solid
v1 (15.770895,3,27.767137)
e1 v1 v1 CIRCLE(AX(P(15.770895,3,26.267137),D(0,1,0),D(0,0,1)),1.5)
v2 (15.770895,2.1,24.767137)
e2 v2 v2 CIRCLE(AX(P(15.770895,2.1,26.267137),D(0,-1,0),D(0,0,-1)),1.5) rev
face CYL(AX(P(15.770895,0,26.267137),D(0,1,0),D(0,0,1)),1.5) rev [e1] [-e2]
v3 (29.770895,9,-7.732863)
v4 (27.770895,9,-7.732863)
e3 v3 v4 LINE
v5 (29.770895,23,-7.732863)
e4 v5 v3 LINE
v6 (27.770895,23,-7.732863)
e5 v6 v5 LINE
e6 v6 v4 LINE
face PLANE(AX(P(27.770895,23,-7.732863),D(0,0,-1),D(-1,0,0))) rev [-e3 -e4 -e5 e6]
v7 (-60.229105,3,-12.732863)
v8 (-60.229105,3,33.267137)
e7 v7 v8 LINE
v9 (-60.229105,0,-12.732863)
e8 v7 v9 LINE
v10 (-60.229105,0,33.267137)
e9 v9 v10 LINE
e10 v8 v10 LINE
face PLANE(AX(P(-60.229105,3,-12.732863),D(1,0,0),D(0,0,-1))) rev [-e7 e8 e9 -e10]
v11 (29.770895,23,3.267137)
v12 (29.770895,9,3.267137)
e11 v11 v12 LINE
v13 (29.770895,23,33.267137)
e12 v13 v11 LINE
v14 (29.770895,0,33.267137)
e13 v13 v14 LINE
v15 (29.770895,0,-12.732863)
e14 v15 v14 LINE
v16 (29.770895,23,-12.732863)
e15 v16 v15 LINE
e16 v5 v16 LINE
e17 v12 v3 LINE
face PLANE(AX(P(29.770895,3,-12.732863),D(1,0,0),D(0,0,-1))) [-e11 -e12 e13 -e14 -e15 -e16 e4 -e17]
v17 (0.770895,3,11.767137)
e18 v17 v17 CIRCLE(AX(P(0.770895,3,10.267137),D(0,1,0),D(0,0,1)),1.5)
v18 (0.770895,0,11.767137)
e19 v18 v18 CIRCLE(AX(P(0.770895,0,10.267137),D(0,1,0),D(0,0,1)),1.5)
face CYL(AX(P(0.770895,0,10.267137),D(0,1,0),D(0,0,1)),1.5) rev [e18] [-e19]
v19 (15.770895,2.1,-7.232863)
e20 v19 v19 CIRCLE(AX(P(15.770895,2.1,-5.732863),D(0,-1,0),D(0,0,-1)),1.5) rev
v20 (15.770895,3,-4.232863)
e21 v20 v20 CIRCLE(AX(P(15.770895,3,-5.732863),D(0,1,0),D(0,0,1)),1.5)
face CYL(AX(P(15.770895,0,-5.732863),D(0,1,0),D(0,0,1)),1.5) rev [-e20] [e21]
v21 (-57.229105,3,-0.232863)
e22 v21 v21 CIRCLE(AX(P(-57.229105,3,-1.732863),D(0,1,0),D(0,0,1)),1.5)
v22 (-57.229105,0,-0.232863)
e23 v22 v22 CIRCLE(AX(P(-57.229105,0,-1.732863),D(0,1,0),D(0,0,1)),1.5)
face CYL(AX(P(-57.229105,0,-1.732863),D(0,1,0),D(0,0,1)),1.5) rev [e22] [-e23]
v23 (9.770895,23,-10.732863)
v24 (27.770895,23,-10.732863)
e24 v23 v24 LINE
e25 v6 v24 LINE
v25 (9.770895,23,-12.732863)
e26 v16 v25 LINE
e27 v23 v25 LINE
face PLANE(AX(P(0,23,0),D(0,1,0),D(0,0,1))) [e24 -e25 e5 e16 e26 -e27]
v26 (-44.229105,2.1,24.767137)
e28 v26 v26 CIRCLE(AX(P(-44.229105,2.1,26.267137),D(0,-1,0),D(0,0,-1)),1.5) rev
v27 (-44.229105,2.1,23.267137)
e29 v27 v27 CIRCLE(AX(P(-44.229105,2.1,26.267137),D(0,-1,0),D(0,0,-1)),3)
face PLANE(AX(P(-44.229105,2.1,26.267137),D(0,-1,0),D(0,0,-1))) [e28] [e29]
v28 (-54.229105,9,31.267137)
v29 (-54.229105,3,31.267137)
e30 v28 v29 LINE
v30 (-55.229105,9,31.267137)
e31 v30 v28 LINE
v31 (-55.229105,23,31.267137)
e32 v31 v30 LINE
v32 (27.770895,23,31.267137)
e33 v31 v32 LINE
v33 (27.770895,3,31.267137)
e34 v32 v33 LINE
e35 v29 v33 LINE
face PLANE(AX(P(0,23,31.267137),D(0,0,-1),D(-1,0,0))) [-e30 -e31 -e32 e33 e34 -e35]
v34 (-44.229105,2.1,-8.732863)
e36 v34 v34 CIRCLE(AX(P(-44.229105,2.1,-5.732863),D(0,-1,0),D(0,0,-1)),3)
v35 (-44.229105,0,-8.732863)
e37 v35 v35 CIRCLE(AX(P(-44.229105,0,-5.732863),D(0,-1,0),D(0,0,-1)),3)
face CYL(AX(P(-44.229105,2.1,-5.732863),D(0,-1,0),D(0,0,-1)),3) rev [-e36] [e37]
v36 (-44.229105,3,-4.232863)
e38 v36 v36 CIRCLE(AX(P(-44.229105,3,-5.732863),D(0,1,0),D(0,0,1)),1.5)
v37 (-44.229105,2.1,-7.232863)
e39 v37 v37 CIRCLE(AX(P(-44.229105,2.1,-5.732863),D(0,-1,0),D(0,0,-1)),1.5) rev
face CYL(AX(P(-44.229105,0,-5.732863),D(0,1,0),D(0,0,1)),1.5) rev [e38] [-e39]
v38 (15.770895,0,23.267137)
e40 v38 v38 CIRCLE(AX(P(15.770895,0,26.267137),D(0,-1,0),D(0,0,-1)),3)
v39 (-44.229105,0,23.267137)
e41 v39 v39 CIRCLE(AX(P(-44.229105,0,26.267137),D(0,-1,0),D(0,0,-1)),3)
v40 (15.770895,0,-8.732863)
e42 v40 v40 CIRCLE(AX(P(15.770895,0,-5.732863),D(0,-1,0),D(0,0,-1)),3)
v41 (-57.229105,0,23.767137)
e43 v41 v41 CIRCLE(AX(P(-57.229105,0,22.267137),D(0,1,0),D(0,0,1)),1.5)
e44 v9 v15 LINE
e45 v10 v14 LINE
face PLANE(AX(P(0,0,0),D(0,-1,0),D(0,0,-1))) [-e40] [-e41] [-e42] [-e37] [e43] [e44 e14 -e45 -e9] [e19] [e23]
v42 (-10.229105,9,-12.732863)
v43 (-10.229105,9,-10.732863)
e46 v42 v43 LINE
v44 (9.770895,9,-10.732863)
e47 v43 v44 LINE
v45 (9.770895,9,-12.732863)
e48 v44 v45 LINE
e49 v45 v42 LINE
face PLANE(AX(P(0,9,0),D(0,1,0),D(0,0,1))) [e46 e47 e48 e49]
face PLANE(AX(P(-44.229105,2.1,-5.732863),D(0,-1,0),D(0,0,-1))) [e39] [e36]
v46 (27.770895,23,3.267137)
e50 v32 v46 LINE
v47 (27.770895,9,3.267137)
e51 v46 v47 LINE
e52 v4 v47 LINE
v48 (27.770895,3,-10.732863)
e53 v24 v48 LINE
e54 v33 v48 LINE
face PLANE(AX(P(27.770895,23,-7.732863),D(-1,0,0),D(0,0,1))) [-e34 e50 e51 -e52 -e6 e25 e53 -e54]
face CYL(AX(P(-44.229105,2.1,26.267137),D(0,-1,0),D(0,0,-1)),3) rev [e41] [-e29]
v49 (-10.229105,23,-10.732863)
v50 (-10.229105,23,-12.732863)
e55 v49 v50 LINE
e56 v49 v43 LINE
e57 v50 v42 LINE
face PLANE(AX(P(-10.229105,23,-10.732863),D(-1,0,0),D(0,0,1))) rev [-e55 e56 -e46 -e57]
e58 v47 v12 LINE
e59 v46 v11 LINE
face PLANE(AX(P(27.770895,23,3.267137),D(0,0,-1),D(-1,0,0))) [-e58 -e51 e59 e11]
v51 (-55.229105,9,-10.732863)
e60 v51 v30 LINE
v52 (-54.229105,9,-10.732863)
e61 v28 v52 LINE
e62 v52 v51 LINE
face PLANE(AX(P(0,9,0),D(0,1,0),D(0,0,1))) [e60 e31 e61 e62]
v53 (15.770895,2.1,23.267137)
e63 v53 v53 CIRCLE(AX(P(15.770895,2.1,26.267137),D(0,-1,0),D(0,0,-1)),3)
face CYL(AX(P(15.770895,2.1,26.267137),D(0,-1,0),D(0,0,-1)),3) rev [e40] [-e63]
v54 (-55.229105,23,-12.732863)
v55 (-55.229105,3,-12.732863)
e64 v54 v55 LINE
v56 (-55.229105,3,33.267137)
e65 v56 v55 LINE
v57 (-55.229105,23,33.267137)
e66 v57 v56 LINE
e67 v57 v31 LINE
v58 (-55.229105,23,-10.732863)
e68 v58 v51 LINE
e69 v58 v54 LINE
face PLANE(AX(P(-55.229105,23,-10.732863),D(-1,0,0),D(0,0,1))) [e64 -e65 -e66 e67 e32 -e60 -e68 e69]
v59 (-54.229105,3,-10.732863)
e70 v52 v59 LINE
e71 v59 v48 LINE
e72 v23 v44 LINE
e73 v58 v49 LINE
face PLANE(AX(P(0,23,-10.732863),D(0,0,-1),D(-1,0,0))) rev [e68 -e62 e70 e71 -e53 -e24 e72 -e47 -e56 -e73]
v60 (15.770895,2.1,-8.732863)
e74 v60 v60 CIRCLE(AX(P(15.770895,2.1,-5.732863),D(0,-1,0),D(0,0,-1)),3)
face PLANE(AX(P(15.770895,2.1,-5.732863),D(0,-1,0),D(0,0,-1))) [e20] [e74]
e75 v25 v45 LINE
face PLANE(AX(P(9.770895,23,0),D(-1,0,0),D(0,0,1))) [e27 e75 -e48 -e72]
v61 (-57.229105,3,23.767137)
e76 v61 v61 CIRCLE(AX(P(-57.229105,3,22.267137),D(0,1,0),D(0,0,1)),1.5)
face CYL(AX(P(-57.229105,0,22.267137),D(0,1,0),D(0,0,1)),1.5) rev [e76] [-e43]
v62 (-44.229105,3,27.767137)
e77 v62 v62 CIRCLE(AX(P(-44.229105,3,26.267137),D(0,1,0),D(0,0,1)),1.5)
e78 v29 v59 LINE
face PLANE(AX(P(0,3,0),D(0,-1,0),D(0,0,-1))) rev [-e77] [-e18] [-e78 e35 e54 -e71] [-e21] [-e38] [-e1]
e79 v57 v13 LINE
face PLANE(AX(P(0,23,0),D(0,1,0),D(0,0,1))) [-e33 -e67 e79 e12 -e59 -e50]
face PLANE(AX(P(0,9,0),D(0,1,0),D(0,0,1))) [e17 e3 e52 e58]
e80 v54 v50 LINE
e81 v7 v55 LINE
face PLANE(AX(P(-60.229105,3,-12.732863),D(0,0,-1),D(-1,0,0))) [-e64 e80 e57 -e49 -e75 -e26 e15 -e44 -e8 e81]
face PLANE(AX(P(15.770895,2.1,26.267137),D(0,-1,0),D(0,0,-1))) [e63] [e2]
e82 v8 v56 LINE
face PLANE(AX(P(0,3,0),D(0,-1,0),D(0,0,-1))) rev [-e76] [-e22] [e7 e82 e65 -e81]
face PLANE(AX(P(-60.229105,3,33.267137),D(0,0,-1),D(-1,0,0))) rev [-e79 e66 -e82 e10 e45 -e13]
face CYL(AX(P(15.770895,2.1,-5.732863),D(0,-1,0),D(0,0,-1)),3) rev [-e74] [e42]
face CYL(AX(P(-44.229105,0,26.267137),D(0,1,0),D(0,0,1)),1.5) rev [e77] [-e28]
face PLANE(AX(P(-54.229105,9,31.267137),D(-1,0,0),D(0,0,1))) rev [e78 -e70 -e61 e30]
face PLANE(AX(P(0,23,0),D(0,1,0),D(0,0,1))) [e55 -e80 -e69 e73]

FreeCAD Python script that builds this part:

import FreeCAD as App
import Part
import Sketcher

V = App.Vector
Q = App.Units.Quantity


def add_polygon(sketch, points):
    """Adds a closed chain of lines whose ends are joined by coincident constraints."""
    first, n = sketch.GeometryCount, len(points)
    for a, b in zip(points, points[1:] + points[:1]):
        sketch.addGeometry(Part.LineSegment(App.Vector(*a, 0), App.Vector(*b, 0)), False)
    for i in range(n):
        sketch.addConstraint(Sketcher.Constraint("Coincident", first + i, 2, first + (i + 1) % n, 1))

doc = App.newDocument("Part")
body = doc.addObject("PartDesign::Body", "Body")

# Sketch on XZ plane
sketch1 = body.newObject("Sketcher::SketchObject", "Sketch")
sketch1.AttachmentSupport = (doc.getObject("XZ_Plane"), [""])
sketch1.MapMode = "FlatFace"
add_polygon(sketch1, [(-60.229105, -12.732863), (-60.229105, 33.267137), (29.770895, 33.267137), (29.770895, -12.732863)])  # lines 0-3
sketch1.addConstraint(Sketcher.Constraint("Vertical", 0))
sketch1.addConstraint(Sketcher.Constraint("Horizontal", 1))
sketch1.addConstraint(Sketcher.Constraint("Vertical", 2))
sketch1.addConstraint(Sketcher.Constraint("Horizontal", 3))
sketch1.addConstraint(Sketcher.Constraint("DistanceX", 1, 1, 1, 2, Q("90 mm")))
sketch1.addConstraint(Sketcher.Constraint("DistanceY", 0, 1, 0, 2, Q("46 mm")))
sketch1.addConstraint(Sketcher.Constraint("DistanceX", 0, 2, -1, 1, Q("60.229105 mm")))
sketch1.addConstraint(Sketcher.Constraint("DistanceY", -1, 1, 0, 2, Q("33.267137 mm")))
pad1 = body.newObject("PartDesign::Pad", "Pad")
pad1.Profile = sketch1
pad1.Length = 3
pad1.Reversed = True

# Sketch on XZ plane
sketch2 = body.newObject("Sketcher::SketchObject", "Sketch001")
sketch2.AttachmentSupport = (doc.getObject("XZ_Plane"), [""])
sketch2.MapMode = "FlatFace"
sketch2.AttachmentOffset = App.Placement(V(0, 0, -3), App.Rotation())
sketch2.addGeometry(Part.Circle(V(-57.229105, 22.267137, 0), V(0, 0, 1), 1.5), False)
sketch2.addGeometry(Part.Circle(V(-57.229105, -1.732863, 0), V(0, 0, 1), 1.5), False)
sketch2.addGeometry(Part.Circle(V(0.770895, 10.267137, 0), V(0, 0, 1), 1.5), False)
sketch2.addConstraint(Sketcher.Constraint("Equal", 0, 1))
sketch2.addConstraint(Sketcher.Constraint("Equal", 1, 2))
sketch2.addConstraint(Sketcher.Constraint("Vertical", 0, 3, 1, 3))
sketch2.addConstraint(Sketcher.Constraint("Diameter", 0, Q("3 mm")))
sketch2.addConstraint(Sketcher.Constraint("DistanceY", 1, 3, 0, 3, Q("24 mm")))
sketch2.addConstraint(Sketcher.Constraint("DistanceX", 0, 3, 2, 3, Q("58 mm")))
sketch2.addConstraint(Sketcher.Constraint("DistanceY", 2, 3, 0, 3, Q("12 mm")))
sketch2.addConstraint(Sketcher.Constraint("DistanceX", 0, 3, -1, 1, Q("57.229105 mm")))
sketch2.addConstraint(Sketcher.Constraint("DistanceY", -1, 1, 0, 3, Q("22.267137 mm")))
pocket1 = body.newObject("PartDesign::Pocket", "Pocket")
pocket1.Profile = sketch2
pocket1.Type = "ThroughAll"
pocket1.Reversed = True

# Sketch on XZ plane
sketch3 = body.newObject("Sketcher::SketchObject", "Sketch002")
sketch3.AttachmentSupport = (doc.getObject("XZ_Plane"), [""])
sketch3.MapMode = "FlatFace"
sketch3.AttachmentOffset = App.Placement(V(0, 0, -3), App.Rotation())
add_polygon(sketch3, [(27.770895, 3.267137), (27.770895, 31.267137), (-55.229105, 31.267137), (-55.229105, 33.267137), (29.770895, 33.267137), (29.770895, 3.267137)])  # lines 0-5
add_polygon(sketch3, [(27.770895, -10.732863), (27.770895, -7.732863), (29.770895, -7.732863), (29.770895, -12.732863), (9.770895, -12.732863), (9.770895, -10.732863)])  # lines 6-11
add_polygon(sketch3, [(-55.229105, -12.732863), (-55.229105, -10.732863), (-10.229105, -10.732863), (-10.229105, -12.732863)])  # lines 12-15
sketch3.addConstraint(Sketcher.Constraint("Vertical", 0))
sketch3.addConstraint(Sketcher.Constraint("Horizontal", 1))
sketch3.addConstraint(Sketcher.Constraint("Vertical", 2))
sketch3.addConstraint(Sketcher.Constraint("Horizontal", 3))
sketch3.addConstraint(Sketcher.Constraint("Vertical", 4))
sketch3.addConstraint(Sketcher.Constraint("Horizontal", 5))
sketch3.addConstraint(Sketcher.Constraint("Vertical", 6))
sketch3.addConstraint(Sketcher.Constraint("Horizontal", 7))
sketch3.addConstraint(Sketcher.Constraint("Vertical", 8))
sketch3.addConstraint(Sketcher.Constraint("Horizontal", 9))
sketch3.addConstraint(Sketcher.Constraint("Vertical", 10))
sketch3.addConstraint(Sketcher.Constraint("Horizontal", 11))
sketch3.addConstraint(Sketcher.Constraint("Vertical", 12))
sketch3.addConstraint(Sketcher.Constraint("Horizontal", 13))
sketch3.addConstraint(Sketcher.Constraint("Vertical", 14))
sketch3.addConstraint(Sketcher.Constraint("Horizontal", 15))
sketch3.addConstraint(Sketcher.Constraint("Horizontal", 11, 2, 12, 2))
sketch3.addConstraint(Sketcher.Constraint("Horizontal", 9, 2, 14, 2))
sketch3.addConstraint(Sketcher.Constraint("Vertical", 5, 2, 6, 2))
sketch3.addConstraint(Sketcher.Constraint("Vertical", 4, 2, 7, 2))
sketch3.addConstraint(Sketcher.Constraint("Vertical", 2, 2, 12, 2))
sketch3.addConstraint(Sketcher.Constraint("Equal", 7, 2))
sketch3.addConstraint(Sketcher.Constraint("Equal", 2, 10))
sketch3.addConstraint(Sketcher.Constraint("DistanceX", 1, 2, 1, 1, Q("83 mm")))
sketch3.addConstraint(Sketcher.Constraint("DistanceX", 3, 1, 3, 2, Q("85 mm")))
sketch3.addConstraint(Sketcher.Constraint("DistanceX", 9, 2, 9, 1, Q("20 mm")))
sketch3.addConstraint(Sketcher.Constraint("DistanceX", 13, 1, 13, 2, Q("45 mm")))
sketch3.addConstraint(Sketcher.Constraint("DistanceY", 0, 1, 0, 2, Q("28 mm")))
sketch3.addConstraint(Sketcher.Constraint("DistanceY", 6, 1, 6, 2, Q("3 mm")))
sketch3.addConstraint(Sketcher.Constraint("DistanceY", 6, 2, 5, 2, Q("11 mm")))
sketch3.addConstraint(Sketcher.Constraint("DistanceX", -1, 1, 0, 2, Q("27.770895 mm")))
sketch3.addConstraint(Sketcher.Constraint("DistanceY", -1, 1, 0, 2, Q("31.267137 mm")))
pad2 = body.newObject("PartDesign::Pad", "Pad001")
pad2.Profile = sketch3
pad2.Length = 20
pad2.Reversed = True

# Sketch on XZ plane
sketch4 = body.newObject("Sketcher::SketchObject", "Sketch003")
sketch4.AttachmentSupport = (doc.getObject("XZ_Plane"), [""])
sketch4.MapMode = "FlatFace"
sketch4.AttachmentOffset = App.Placement(V(0, 0, -3), App.Rotation())
sketch4.addGeometry(Part.Circle(V(15.770895, 26.267137, 0), V(0, 0, 1), 1.5), False)
sketch4.addGeometry(Part.Circle(V(-44.229105, 26.267137, 0), V(0, 0, 1), 1.5), False)
sketch4.addGeometry(Part.Circle(V(15.770895, -5.732863, 0), V(0, 0, 1), 1.5), False)
sketch4.addGeometry(Part.Circle(V(-44.229105, -5.732863, 0), V(0, 0, 1), 1.5), False)
sketch4.addConstraint(Sketcher.Constraint("Equal", 0, 1))
sketch4.addConstraint(Sketcher.Constraint("Equal", 1, 2))
sketch4.addConstraint(Sketcher.Constraint("Equal", 2, 3))
sketch4.addConstraint(Sketcher.Constraint("Horizontal", 0, 3, 1, 3))
sketch4.addConstraint(Sketcher.Constraint("Horizontal", 2, 3, 3, 3))
sketch4.addConstraint(Sketcher.Constraint("Vertical", 0, 3, 2, 3))
sketch4.addConstraint(Sketcher.Constraint("Vertical", 1, 3, 3, 3))
sketch4.addConstraint(Sketcher.Constraint("Diameter", 0, Q("3 mm")))
sketch4.addConstraint(Sketcher.Constraint("DistanceX", 1, 3, 0, 3, Q("60 mm")))
sketch4.addConstraint(Sketcher.Constraint("DistanceY", 2, 3, 0, 3, Q("32 mm")))
sketch4.addConstraint(Sketcher.Constraint("DistanceX", -1, 1, 0, 3, Q("15.770895 mm")))
sketch4.addConstraint(Sketcher.Constraint("DistanceY", -1, 1, 0, 3, Q("26.267137 mm")))
pocket2 = body.newObject("PartDesign::Pocket", "Pocket001")
pocket2.Profile = sketch4
pocket2.Type = "ThroughAll"
pocket2.Reversed = True

# Sketch on XZ plane
sketch5 = body.newObject("Sketcher::SketchObject", "Sketch004")
sketch5.AttachmentSupport = (doc.getObject("XZ_Plane"), [""])
sketch5.MapMode = "FlatFace"
sketch5.addGeometry(Part.Circle(V(15.770895, 26.267137, 0), V(0, 0, 1), 3), False)
sketch5.addGeometry(Part.Circle(V(15.770895, -5.732863, 0), V(0, 0, 1), 3), False)
sketch5.addGeometry(Part.Circle(V(-44.229105, 26.267137, 0), V(0, 0, 1), 3), False)
sketch5.addGeometry(Part.Circle(V(-44.229105, -5.732863, 0), V(0, 0, 1), 3), False)
sketch5.addConstraint(Sketcher.Constraint("Equal", 0, 1))
sketch5.addConstraint(Sketcher.Constraint("Equal", 1, 2))
sketch5.addConstraint(Sketcher.Constraint("Equal", 2, 3))
sketch5.addConstraint(Sketcher.Constraint("Horizontal", 0, 3, 2, 3))
sketch5.addConstraint(Sketcher.Constraint("Horizontal", 1, 3, 3, 3))
sketch5.addConstraint(Sketcher.Constraint("Vertical", 0, 3, 1, 3))
sketch5.addConstraint(Sketcher.Constraint("Vertical", 2, 3, 3, 3))
sketch5.addConstraint(Sketcher.Constraint("Diameter", 0, Q("6 mm")))
sketch5.addConstraint(Sketcher.Constraint("DistanceY", 1, 3, 0, 3, Q("32 mm")))
sketch5.addConstraint(Sketcher.Constraint("DistanceX", 2, 3, 0, 3, Q("60 mm")))
sketch5.addConstraint(Sketcher.Constraint("DistanceX", -1, 1, 0, 3, Q("15.770895 mm")))
sketch5.addConstraint(Sketcher.Constraint("DistanceY", -1, 1, 0, 3, Q("26.267137 mm")))
pocket3 = body.newObject("PartDesign::Pocket", "Pocket002")
pocket3.Profile = sketch5
pocket3.Length = 2.1

# Sketch on XZ plane
sketch6 = body.newObject("Sketcher::SketchObject", "Sketch005")
sketch6.AttachmentSupport = (doc.getObject("XZ_Plane"), [""])
sketch6.MapMode = "FlatFace"
sketch6.AttachmentOffset = App.Placement(V(0, 0, -3), App.Rotation())
add_polygon(sketch6, [(27.770895, -7.732863), (27.770895, 3.267137), (29.770895, 3.267137), (29.770895, -7.732863)])  # lines 0-3
add_polygon(sketch6, [(-10.229105, -12.732863), (-10.229105, -10.732863), (9.770895, -10.732863), (9.770895, -12.732863)])  # lines 4-7
add_polygon(sketch6, [(-55.229105, -10.732863), (-55.229105, 31.267137), (-54.229105, 31.267137), (-54.229105, -10.732863)])  # lines 8-11
sketch6.addConstraint(Sketcher.Constraint("Vertical", 0))
sketch6.addConstraint(Sketcher.Constraint("Horizontal", 1))
sketch6.addConstraint(Sketcher.Constraint("Vertical", 2))
sketch6.addConstraint(Sketcher.Constraint("Horizontal", 3))
sketch6.addConstraint(Sketcher.Constraint("Vertical", 4))
sketch6.addConstraint(Sketcher.Constraint("Horizontal", 5))
sketch6.addConstraint(Sketcher.Constraint("Vertical", 6))
sketch6.addConstraint(Sketcher.Constraint("Horizontal", 7))
sketch6.addConstraint(Sketcher.Constraint("Vertical", 8))
sketch6.addConstraint(Sketcher.Constraint("Horizontal", 9))
sketch6.addConstraint(Sketcher.Constraint("Vertical", 10))
sketch6.addConstraint(Sketcher.Constraint("Horizontal", 11))
sketch6.addConstraint(Sketcher.Constraint("Horizontal", 5, 2, 10, 2))
sketch6.addConstraint(Sketcher.Constraint("Equal", 3, 4))
sketch6.addConstraint(Sketcher.Constraint("DistanceX", 1, 1, 1, 2, Q("2 mm")))
sketch6.addConstraint(Sketcher.Constraint("DistanceX", 5, 1, 5, 2, Q("20 mm")))
sketch6.addConstraint(Sketcher.Constraint("DistanceX", 9, 1, 9, 2, Q("1 mm")))
sketch6.addConstraint(Sketcher.Constraint("DistanceY", 0, 1, 0, 2, Q("11 mm")))
sketch6.addConstraint(Sketcher.Constraint("DistanceY", 8, 1, 8, 2, Q("42 mm")))
sketch6.addConstraint(Sketcher.Constraint("DistanceX", 4, 2, 3, 2, Q("38 mm")))
sketch6.addConstraint(Sketcher.Constraint("DistanceY", 4, 2, 3, 2, Q("3 mm")))
sketch6.addConstraint(Sketcher.Constraint("DistanceX", 8, 2, 4, 2, Q("45 mm")))
sketch6.addConstraint(Sketcher.Constraint("DistanceX", -1, 1, 0, 2, Q("27.770895 mm")))
sketch6.addConstraint(Sketcher.Constraint("DistanceY", -1, 1, 0, 2, Q("3.267137 mm")))
pad3 = body.newObject("PartDesign::Pad", "Pad002")
pad3.Profile = sketch6
pad3.Length = 6
pad3.Reversed = True

doc.recompute()
